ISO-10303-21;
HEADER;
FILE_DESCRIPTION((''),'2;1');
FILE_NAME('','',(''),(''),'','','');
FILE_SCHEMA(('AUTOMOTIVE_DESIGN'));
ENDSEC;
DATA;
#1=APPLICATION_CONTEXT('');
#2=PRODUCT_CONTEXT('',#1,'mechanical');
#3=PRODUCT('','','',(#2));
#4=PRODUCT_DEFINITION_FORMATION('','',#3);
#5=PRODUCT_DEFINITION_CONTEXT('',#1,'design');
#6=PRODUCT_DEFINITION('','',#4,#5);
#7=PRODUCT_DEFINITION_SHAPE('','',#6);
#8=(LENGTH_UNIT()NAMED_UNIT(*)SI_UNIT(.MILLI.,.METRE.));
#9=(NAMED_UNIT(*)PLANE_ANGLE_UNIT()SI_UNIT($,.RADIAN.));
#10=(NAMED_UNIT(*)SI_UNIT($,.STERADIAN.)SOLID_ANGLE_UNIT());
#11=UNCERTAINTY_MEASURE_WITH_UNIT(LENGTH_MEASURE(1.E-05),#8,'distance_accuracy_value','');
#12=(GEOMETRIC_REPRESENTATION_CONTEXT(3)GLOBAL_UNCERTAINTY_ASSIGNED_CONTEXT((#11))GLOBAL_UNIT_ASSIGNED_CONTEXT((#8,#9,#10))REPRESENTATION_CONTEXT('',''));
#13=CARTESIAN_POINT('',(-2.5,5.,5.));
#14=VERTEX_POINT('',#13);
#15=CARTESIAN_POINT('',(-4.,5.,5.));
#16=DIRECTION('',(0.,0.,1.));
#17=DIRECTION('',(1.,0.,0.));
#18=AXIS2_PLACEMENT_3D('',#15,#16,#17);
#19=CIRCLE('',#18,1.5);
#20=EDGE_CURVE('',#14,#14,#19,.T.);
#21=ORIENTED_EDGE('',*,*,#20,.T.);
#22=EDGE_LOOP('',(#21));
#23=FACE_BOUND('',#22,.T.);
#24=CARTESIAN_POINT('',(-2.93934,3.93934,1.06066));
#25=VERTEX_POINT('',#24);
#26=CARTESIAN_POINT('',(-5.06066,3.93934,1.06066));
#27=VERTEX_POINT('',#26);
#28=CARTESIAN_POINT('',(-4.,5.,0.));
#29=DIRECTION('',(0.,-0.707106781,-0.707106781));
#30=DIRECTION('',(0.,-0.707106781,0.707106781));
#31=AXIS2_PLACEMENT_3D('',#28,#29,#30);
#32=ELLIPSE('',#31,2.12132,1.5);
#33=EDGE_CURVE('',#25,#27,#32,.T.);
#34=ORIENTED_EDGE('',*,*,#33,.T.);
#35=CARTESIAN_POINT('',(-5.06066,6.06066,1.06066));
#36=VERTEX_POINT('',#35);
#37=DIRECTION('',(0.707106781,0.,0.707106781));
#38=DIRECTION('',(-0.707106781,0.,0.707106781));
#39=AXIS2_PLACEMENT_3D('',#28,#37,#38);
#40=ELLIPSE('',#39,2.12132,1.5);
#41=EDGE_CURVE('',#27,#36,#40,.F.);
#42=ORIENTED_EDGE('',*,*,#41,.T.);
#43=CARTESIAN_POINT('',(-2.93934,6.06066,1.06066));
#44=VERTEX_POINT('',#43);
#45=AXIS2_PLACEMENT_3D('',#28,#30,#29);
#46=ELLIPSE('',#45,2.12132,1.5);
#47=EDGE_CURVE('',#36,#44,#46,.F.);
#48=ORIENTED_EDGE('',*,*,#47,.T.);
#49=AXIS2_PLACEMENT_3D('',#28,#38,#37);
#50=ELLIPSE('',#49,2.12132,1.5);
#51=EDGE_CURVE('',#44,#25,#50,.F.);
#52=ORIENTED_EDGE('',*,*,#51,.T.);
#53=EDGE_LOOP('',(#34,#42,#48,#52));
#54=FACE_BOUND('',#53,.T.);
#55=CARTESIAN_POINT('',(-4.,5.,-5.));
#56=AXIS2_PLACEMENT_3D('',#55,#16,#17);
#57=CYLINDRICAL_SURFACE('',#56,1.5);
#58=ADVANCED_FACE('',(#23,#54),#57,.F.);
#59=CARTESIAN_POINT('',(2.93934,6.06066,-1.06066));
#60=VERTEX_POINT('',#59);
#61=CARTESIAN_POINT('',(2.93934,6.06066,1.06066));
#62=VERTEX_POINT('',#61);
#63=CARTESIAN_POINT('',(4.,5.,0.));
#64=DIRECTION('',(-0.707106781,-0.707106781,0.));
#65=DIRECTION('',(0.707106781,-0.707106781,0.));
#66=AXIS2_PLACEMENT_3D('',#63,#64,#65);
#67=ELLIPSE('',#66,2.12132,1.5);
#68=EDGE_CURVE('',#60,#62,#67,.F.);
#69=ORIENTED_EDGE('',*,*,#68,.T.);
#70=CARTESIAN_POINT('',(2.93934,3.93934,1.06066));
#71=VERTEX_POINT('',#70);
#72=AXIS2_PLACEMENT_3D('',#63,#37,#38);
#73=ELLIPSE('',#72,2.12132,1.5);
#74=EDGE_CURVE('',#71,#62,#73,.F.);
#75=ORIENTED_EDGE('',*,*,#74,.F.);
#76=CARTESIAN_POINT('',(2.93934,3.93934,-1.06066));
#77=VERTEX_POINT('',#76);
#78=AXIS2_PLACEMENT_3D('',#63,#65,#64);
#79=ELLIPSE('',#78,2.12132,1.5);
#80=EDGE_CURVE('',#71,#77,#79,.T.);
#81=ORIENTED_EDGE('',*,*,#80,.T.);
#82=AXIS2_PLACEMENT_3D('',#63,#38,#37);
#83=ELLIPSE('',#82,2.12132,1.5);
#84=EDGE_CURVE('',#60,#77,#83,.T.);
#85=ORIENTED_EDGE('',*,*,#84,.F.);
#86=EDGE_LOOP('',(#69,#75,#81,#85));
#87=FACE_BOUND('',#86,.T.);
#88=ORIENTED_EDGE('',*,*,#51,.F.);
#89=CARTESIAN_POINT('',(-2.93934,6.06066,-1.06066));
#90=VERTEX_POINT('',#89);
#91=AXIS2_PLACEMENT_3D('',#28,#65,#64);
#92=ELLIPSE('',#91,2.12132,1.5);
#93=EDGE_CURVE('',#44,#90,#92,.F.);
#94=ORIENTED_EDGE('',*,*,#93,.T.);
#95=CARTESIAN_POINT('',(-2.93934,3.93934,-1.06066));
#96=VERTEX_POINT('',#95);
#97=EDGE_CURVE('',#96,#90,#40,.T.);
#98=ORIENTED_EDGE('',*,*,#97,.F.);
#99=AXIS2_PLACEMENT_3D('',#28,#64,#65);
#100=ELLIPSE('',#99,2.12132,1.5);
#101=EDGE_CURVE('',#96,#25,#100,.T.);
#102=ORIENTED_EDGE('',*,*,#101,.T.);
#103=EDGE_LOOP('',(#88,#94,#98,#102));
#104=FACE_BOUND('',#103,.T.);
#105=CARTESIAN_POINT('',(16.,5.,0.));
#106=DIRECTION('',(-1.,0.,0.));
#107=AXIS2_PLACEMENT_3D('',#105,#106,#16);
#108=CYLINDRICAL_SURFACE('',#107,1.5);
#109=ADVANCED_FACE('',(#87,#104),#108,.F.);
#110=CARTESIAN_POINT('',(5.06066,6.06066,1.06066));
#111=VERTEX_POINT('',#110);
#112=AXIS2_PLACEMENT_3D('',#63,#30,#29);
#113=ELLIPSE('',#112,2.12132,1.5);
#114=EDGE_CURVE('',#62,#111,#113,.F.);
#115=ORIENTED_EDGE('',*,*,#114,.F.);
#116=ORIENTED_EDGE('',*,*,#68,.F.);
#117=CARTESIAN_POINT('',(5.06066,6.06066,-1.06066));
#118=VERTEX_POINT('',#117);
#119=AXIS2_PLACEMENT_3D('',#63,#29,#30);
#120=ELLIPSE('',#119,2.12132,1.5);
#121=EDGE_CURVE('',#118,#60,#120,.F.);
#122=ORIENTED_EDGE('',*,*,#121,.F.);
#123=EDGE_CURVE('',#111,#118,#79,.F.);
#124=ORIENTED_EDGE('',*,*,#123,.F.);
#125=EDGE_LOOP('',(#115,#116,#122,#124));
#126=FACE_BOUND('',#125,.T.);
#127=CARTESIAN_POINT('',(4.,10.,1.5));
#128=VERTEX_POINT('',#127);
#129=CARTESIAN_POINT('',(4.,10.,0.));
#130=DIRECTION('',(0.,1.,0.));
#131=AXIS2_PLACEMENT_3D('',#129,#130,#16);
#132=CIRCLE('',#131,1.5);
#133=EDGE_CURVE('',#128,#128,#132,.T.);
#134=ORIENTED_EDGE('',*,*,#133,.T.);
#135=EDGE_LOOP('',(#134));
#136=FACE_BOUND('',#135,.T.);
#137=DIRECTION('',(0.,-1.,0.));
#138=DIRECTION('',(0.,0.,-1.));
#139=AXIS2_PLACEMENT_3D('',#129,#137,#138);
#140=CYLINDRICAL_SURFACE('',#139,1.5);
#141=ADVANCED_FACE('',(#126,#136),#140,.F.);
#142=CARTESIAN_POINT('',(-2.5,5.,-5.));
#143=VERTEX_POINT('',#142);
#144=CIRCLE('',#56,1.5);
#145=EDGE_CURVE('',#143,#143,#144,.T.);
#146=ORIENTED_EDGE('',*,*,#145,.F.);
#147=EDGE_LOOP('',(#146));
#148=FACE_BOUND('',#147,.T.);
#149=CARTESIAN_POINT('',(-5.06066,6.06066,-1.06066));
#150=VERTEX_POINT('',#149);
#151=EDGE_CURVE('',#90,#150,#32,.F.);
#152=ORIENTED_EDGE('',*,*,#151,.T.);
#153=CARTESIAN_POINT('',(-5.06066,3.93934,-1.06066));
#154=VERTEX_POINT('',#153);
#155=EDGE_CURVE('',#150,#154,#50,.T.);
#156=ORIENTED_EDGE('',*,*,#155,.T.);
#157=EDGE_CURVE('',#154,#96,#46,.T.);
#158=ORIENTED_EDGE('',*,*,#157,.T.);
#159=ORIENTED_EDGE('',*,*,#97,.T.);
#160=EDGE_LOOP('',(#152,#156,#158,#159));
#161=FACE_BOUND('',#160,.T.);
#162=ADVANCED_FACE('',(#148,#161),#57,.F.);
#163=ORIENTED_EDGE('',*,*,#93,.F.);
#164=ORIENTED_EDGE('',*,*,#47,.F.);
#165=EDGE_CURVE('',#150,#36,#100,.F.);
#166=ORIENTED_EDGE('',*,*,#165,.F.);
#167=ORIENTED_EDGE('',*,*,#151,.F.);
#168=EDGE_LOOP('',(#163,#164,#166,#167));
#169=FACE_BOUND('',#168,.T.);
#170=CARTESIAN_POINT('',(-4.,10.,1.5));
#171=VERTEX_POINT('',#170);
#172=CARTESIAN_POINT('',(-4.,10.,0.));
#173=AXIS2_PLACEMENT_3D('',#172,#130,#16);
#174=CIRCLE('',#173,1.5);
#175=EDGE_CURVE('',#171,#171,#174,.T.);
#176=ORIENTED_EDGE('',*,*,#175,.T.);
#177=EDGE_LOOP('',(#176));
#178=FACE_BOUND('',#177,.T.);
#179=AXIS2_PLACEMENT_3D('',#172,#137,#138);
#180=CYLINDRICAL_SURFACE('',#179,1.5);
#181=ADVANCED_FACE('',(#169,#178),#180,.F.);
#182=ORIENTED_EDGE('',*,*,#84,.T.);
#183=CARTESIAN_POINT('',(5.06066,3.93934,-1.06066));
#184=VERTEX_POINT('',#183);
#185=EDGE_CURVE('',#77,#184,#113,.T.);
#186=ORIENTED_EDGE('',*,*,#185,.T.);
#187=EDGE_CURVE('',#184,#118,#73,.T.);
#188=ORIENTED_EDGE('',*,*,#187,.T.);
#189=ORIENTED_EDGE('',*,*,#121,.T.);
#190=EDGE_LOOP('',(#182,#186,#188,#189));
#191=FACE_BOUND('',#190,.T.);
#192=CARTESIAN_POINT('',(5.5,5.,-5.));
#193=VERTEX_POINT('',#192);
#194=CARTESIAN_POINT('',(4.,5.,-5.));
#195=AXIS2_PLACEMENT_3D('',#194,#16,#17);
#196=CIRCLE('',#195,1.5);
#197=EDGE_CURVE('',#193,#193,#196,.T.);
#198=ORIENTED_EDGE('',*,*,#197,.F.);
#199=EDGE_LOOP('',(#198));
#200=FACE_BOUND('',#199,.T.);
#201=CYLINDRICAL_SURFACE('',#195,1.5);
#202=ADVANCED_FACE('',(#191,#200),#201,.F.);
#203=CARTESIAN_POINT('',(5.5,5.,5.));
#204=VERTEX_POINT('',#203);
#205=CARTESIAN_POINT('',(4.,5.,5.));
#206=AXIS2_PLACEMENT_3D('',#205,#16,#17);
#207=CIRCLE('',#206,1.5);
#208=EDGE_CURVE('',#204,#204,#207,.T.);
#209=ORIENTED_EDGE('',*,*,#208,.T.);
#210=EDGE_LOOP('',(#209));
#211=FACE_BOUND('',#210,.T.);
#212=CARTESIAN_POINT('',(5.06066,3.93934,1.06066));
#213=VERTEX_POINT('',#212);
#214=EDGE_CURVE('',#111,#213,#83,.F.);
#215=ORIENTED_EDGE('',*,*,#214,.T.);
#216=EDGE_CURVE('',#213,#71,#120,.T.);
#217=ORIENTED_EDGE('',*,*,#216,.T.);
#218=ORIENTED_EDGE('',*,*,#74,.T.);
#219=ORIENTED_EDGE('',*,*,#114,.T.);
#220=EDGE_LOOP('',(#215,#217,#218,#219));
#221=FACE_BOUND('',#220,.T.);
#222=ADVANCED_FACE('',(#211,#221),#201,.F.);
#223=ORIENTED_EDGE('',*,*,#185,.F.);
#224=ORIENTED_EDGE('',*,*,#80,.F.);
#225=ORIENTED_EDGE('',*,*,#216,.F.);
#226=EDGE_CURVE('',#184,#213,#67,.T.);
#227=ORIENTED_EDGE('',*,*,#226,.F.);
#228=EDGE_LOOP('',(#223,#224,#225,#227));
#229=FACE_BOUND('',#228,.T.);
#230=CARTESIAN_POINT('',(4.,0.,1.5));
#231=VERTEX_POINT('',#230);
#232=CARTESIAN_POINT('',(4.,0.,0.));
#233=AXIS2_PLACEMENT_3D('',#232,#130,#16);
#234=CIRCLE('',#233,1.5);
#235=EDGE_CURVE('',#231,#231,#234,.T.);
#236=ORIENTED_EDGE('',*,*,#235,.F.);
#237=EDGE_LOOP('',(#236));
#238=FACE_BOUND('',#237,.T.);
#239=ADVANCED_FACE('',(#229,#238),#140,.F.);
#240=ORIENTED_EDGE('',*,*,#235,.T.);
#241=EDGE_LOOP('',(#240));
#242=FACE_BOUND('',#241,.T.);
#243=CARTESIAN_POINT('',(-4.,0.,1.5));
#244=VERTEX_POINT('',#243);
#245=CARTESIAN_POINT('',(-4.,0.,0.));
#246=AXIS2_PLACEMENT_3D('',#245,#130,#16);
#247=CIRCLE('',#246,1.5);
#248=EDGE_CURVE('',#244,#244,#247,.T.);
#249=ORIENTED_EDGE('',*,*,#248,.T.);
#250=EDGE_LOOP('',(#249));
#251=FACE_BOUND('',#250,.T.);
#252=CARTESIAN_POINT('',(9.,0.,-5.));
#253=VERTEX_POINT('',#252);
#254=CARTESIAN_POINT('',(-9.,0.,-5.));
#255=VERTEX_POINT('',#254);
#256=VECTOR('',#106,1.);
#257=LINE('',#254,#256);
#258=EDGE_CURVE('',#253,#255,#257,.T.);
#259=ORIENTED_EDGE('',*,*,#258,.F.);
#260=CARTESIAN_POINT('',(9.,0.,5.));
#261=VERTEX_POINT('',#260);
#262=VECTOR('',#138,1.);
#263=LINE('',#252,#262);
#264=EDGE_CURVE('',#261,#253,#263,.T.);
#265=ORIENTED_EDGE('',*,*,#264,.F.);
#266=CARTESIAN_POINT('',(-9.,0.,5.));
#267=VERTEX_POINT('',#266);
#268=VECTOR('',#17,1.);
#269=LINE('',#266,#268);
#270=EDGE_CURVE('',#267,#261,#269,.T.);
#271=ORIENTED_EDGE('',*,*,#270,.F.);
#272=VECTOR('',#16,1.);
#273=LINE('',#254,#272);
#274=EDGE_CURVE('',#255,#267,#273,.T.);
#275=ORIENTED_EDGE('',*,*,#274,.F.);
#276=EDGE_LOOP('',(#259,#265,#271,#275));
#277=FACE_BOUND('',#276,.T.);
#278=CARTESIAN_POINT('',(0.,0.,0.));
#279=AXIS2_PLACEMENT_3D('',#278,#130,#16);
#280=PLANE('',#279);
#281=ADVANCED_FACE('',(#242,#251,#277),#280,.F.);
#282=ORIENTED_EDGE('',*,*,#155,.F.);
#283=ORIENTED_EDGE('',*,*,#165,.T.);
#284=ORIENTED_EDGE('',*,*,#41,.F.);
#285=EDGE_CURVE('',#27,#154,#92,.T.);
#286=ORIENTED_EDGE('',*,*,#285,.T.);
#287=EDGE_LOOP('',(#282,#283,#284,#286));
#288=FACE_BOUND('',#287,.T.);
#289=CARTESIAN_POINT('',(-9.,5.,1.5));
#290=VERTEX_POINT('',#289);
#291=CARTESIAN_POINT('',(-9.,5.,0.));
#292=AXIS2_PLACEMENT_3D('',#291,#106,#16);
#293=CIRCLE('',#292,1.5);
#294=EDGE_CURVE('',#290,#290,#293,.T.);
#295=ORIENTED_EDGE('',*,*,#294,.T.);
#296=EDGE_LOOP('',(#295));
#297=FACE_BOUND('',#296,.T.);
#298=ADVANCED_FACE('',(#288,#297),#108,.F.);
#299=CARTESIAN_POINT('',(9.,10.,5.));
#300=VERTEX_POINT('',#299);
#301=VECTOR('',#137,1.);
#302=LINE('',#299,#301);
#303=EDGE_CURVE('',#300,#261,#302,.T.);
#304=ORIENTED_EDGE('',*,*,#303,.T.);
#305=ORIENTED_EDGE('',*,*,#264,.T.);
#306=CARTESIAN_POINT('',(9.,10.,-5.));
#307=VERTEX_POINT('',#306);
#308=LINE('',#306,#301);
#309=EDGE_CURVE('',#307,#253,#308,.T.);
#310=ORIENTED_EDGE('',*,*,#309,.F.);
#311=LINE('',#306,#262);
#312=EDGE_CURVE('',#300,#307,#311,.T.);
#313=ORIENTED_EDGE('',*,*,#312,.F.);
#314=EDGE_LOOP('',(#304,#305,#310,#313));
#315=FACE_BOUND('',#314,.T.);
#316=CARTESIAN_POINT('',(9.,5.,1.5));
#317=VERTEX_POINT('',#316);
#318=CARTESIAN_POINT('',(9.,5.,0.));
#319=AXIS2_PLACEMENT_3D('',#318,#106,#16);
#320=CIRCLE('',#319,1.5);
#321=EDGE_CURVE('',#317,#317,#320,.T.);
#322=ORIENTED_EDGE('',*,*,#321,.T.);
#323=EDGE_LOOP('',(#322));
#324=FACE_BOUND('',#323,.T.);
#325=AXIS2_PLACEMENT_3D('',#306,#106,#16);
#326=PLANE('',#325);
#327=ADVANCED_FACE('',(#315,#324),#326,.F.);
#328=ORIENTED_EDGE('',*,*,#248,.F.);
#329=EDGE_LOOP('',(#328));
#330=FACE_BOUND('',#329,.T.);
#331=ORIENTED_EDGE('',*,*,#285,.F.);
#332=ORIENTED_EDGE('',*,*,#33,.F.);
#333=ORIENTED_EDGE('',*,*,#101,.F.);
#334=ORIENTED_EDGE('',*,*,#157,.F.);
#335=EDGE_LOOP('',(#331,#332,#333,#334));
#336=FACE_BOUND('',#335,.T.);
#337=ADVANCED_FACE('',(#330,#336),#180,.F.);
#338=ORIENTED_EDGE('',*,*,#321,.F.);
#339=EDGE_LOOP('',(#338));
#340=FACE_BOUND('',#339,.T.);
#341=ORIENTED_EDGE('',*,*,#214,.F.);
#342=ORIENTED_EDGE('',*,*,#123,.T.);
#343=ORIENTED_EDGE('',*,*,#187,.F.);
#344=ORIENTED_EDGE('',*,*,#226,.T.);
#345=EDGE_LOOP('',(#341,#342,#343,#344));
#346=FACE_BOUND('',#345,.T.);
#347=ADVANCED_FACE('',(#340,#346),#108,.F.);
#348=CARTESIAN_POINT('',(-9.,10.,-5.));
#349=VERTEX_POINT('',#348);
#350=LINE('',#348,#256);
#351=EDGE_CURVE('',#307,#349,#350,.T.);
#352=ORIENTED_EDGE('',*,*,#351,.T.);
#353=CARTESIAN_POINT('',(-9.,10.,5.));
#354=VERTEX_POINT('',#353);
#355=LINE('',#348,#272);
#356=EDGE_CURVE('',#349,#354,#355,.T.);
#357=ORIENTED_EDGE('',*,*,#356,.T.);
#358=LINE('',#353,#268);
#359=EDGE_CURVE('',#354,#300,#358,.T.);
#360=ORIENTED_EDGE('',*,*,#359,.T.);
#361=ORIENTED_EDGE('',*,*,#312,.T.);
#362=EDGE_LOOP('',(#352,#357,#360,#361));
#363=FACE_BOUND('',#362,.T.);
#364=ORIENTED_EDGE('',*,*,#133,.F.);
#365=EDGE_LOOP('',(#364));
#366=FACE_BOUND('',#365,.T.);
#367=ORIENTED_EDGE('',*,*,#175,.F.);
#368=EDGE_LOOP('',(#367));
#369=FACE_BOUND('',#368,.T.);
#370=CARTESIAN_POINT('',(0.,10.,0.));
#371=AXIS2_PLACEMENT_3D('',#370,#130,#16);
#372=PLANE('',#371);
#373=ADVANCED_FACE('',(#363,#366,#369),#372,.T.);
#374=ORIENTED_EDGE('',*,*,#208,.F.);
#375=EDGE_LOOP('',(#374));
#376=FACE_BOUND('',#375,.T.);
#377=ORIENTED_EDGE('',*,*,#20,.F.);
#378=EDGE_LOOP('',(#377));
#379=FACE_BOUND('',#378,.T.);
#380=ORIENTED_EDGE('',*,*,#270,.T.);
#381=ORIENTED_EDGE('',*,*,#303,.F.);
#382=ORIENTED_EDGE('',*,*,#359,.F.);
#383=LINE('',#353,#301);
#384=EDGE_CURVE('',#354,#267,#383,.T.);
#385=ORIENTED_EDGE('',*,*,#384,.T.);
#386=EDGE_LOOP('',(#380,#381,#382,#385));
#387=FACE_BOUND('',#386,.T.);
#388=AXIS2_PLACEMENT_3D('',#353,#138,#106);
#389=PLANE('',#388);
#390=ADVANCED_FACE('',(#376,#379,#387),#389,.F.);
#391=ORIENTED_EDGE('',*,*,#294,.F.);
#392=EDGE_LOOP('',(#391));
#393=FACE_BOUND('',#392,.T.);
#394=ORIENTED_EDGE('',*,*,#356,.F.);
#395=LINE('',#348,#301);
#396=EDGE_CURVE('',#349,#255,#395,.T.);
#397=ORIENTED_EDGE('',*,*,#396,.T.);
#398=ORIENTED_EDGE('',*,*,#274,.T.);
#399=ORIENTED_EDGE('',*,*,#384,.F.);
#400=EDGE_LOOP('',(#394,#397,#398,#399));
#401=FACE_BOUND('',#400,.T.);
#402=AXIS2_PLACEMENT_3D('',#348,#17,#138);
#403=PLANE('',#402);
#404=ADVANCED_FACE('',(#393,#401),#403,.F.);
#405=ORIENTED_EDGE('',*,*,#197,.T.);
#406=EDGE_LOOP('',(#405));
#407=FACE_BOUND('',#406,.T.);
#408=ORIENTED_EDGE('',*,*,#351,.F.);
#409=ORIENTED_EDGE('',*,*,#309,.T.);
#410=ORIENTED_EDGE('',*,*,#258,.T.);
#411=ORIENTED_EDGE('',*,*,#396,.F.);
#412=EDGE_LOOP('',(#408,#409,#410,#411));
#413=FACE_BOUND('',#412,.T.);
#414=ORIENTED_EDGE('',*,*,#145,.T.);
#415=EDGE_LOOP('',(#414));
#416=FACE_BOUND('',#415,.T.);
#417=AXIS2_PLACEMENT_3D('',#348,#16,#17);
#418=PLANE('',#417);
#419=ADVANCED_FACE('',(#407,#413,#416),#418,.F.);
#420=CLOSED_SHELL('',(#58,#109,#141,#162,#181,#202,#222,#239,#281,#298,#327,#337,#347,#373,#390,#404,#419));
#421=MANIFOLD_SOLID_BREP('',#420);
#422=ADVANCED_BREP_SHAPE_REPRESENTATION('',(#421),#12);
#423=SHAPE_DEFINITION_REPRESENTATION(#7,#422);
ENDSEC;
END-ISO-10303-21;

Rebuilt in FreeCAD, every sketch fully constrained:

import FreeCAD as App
import Part
import Sketcher
Q = App.Units.Quantity


def add_polygon(sketch, points):
    """Adds a closed chain of lines whose ends are joined by coincident constraints."""
    first, n = sketch.GeometryCount, len(points)
    for a, b in zip(points, points[1:] + points[:1]):
        sketch.addGeometry(Part.LineSegment(App.Vector(*a, 0), App.Vector(*b, 0)), False)
    for i in range(n):
        sketch.addConstraint(Sketcher.Constraint("Coincident", first + i, 2, first + (i + 1) % n, 1))

doc = App.newDocument("Part")
params = doc.addObject("Spreadsheet::Sheet", "Params")
for row, (alias, value) in enumerate([
    ("sketch1_diameter", "3 mm"),
    ("sketch1_width", "18 mm"),
    ("sketch1_height", "10 mm"),
    ("pad1_length", "10 mm"),
    ("sketch2_diameter", "3 mm"),
    ("pocket1_length", "10 mm"),
    ("sketch3_diameter", "3 mm"),
    ("pocket2_length", "25 mm"),
], start=1):
    params.set(f"A{row}", alias)
    params.set(f"B{row}", "=" + value)
    params.setAlias(f"B{row}", alias)

body = doc.addObject("PartDesign::Body", "Body")

# Sketch on XZ plane
sketch1 = body.newObject("Sketcher::SketchObject", "Sketch")
sketch1.AttachmentSupport = (doc.getObject("XZ_Plane"), [""])
sketch1.MapMode = "FlatFace"
add_polygon(sketch1, [(-9, -5), (-9, 5), (9, 5), (9, -5)])  # lines 0-3
sketch1.addGeometry(Part.Circle(App.Vector(-4, 0, 0), App.Vector(0, 0, 1), 1.5), False)  # 4
sketch1.addGeometry(Part.Circle(App.Vector(4, 0, 0), App.Vector(0, 0, 1), 1.5), False)  # 5
sketch1.addConstraint([
    Sketcher.Constraint("Vertical", 0),
    Sketcher.Constraint("Horizontal", 1),
    Sketcher.Constraint("Vertical", 2),
    Sketcher.Constraint("Horizontal", 3),
    Sketcher.Constraint("Equal", 4, 5),
    Sketcher.Constraint("Symmetric", 4, 3, 5, 3, -1, 1),
    Sketcher.Constraint("Symmetric", 0, 2, 2, 2, -1, 1),
    Sketcher.Constraint("PointOnObject", 4, 3, -1),
    Sketcher.Constraint("Diameter", 4, Q("3 mm")),
    Sketcher.Constraint("DistanceX", 1, 1, 1, 2, Q("18 mm")),
    Sketcher.Constraint("DistanceY", 0, 1, 0, 2, Q("10 mm")),
    Sketcher.Constraint("DistanceX", 4, 3, -1, 1, Q("4 mm")),
])
sketch1.setExpression("Constraints[12]", "Params.sketch1_diameter")
sketch1.setExpression("Constraints[13]", "Params.sketch1_width")
sketch1.setExpression("Constraints[14]", "Params.sketch1_height")
pad1 = body.newObject("PartDesign::Pad", "Pad")
pad1.Profile = sketch1
pad1.setExpression("Length", "Params.pad1_length")
pad1.Reversed = True

# Sketch on XY plane
sketch2 = body.newObject("Sketcher::SketchObject", "Sketch001")
sketch2.AttachmentSupport = (doc.getObject("XY_Plane"), [""])
sketch2.MapMode = "FlatFace"
sketch2.AttachmentOffset = App.Placement(App.Vector(0, 0, 5), App.Rotation())
sketch2.addGeometry([
    Part.Circle(App.Vector(-4, 5, 0), App.Vector(0, 0, 1), 1.5),
    Part.Circle(App.Vector(4, 5, 0), App.Vector(0, 0, 1), 1.5),
], False)
sketch2.addConstraint([
    Sketcher.Constraint("Equal", 0, 1),
    Sketcher.Constraint("Symmetric", 0, 3, 1, 3, -2),
    Sketcher.Constraint("Diameter", 0, Q("3 mm")),
    Sketcher.Constraint("DistanceX", 0, 3, -1, 1, Q("4 mm")),
    Sketcher.Constraint("DistanceY", -1, 1, 0, 3, Q("5 mm")),
])
sketch2.setExpression("Constraints[2]", "Params.sketch2_diameter")
pocket1 = body.newObject("PartDesign::Pocket", "Pocket")
pocket1.Profile = sketch2
pocket1.setExpression("Length", "Params.pocket1_length")

# Sketch on YZ plane
sketch3 = body.newObject("Sketcher::SketchObject", "Sketch002")
sketch3.AttachmentSupport = (doc.getObject("YZ_Plane"), [""])
sketch3.MapMode = "FlatFace"
sketch3.AttachmentOffset = App.Placement(App.Vector(0, 0, -9), App.Rotation())
sketch3.addGeometry(Part.Circle(App.Vector(5, 0, 0), App.Vector(0, 0, 1), 1.5), False)
sketch3.addConstraint([
    Sketcher.Constraint("PointOnObject", 0, 3, -1),
    Sketcher.Constraint("Diameter", 0, Q("3 mm")),
    Sketcher.Constraint("DistanceX", -1, 1, 0, 3, Q("5 mm")),
])
sketch3.setExpression("Constraints[1]", "Params.sketch3_diameter")
pocket2 = body.newObject("PartDesign::Pocket", "Pocket001")
pocket2.Profile = sketch3
pocket2.setExpression("Length", "Params.pocket2_length")
pocket2.Reversed = True

doc.recompute()
